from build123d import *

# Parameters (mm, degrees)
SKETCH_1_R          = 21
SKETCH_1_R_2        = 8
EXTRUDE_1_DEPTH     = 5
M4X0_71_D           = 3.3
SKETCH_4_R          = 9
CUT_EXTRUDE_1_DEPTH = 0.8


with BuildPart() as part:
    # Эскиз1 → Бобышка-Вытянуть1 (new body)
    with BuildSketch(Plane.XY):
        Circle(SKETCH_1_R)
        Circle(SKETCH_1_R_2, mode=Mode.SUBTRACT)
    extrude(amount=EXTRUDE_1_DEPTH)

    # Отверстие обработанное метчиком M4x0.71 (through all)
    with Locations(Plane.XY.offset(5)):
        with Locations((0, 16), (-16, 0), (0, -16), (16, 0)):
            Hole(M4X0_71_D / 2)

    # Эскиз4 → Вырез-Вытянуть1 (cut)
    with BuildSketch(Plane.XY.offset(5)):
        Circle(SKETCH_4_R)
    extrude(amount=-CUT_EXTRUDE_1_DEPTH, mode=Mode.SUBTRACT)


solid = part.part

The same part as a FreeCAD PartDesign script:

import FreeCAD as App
import Part
import Sketcher

doc = App.newDocument("Part")
body = doc.addObject("PartDesign::Body", "Body")

# Sketch on XY plane
sketch1 = body.newObject("Sketcher::SketchObject", "Sketch")
sketch1.AttachmentSupport = (doc.getObject("XY_Plane"), [""])
sketch1.MapMode = "FlatFace"
sketch1.addGeometry(Part.Circle(App.Vector(0, 0, 0), App.Vector(0, 0, 1), 21), False)
sketch1.addGeometry(Part.Circle(App.Vector(0, 0, 0), App.Vector(0, 0, 1), 8), False)
sketch1.addConstraint(Sketcher.Constraint("Coincident", 0, 3, -1, 1))
sketch1.addConstraint(Sketcher.Constraint("Coincident", 1, 3, -1, 1))
sketch1.addConstraint(Sketcher.Constraint("Diameter", 0, 42.0))
sketch1.addConstraint(Sketcher.Constraint("Diameter", 1, 16.0))
pad1 = body.newObject("PartDesign::Pad", "Pad")
pad1.Profile = sketch1
pad1.Length = 5

# Sketch on XY plane
sketch2 = body.newObject("Sketcher::SketchObject", "Sketch001")
sketch2.AttachmentSupport = (doc.getObject("XY_Plane"), [""])
sketch2.MapMode = "FlatFace"
sketch2.AttachmentOffset = App.Placement(App.Vector(0, 0, 5), App.Rotation())
sketch2.addGeometry(Part.Circle(App.Vector(0, 16, 0), App.Vector(0, 0, 1), 1.6), False)
sketch2.addGeometry(Part.Circle(App.Vector(-16, 0, 0), App.Vector(0, 0, 1), 1.6), False)
sketch2.addGeometry(Part.Circle(App.Vector(0, -16, 0), App.Vector(0, 0, 1), 1.6), False)
sketch2.addGeometry(Part.Circle(App.Vector(16, 0, 0), App.Vector(0, 0, 1), 1.6), False)
sketch2.addConstraint(Sketcher.Constraint("Equal", 0, 1))
sketch2.addConstraint(Sketcher.Constraint("Equal", 1, 2))
sketch2.addConstraint(Sketcher.Constraint("Equal", 2, 3))
sketch2.addConstraint(Sketcher.Constraint("Symmetric", 0, 3, 2, 3, -1, 1))
sketch2.addConstraint(Sketcher.Constraint("Symmetric", 1, 3, 3, 3, -1, 1))
sketch2.addConstraint(Sketcher.Constraint("PointOnObject", 0, 3, -2))
sketch2.addConstraint(Sketcher.Constraint("PointOnObject", 1, 3, -1))
sketch2.addConstraint(Sketcher.Constraint("Diameter", 0, 3.3))
sketch2.addConstraint(Sketcher.Constraint("DistanceY", -1, 1, 0, 3, 16.0))
sketch2.addConstraint(Sketcher.Constraint("DistanceX", 1, 3, -1, 1, 16.0))
doc.recompute()
hole = body.newObject("PartDesign::Hole", "Hole")
hole.Profile = sketch2
hole.ThreadType = "None"
hole.Diameter = 3.3
hole.DepthType = "ThroughAll"

# Sketch on XY plane
sketch3 = body.newObject("Sketcher::SketchObject", "Sketch002")
sketch3.AttachmentSupport = (doc.getObject("XY_Plane"), [""])
sketch3.MapMode = "FlatFace"
sketch3.AttachmentOffset = App.Placement(App.Vector(0, 0, 5), App.Rotation())
sketch3.addGeometry(Part.Circle(App.Vector(0, 0, 0), App.Vector(0, 0, 1), 9), False)
sketch3.addConstraint(Sketcher.Constraint("Coincident", 0, 3, -1, 1))
sketch3.addConstraint(Sketcher.Constraint("Diameter", 0, 18.0))
pocket1 = body.newObject("PartDesign::Pocket", "Pocket")
pocket1.Profile = sketch3
pocket1.Length = 0.8

doc.recompute()
